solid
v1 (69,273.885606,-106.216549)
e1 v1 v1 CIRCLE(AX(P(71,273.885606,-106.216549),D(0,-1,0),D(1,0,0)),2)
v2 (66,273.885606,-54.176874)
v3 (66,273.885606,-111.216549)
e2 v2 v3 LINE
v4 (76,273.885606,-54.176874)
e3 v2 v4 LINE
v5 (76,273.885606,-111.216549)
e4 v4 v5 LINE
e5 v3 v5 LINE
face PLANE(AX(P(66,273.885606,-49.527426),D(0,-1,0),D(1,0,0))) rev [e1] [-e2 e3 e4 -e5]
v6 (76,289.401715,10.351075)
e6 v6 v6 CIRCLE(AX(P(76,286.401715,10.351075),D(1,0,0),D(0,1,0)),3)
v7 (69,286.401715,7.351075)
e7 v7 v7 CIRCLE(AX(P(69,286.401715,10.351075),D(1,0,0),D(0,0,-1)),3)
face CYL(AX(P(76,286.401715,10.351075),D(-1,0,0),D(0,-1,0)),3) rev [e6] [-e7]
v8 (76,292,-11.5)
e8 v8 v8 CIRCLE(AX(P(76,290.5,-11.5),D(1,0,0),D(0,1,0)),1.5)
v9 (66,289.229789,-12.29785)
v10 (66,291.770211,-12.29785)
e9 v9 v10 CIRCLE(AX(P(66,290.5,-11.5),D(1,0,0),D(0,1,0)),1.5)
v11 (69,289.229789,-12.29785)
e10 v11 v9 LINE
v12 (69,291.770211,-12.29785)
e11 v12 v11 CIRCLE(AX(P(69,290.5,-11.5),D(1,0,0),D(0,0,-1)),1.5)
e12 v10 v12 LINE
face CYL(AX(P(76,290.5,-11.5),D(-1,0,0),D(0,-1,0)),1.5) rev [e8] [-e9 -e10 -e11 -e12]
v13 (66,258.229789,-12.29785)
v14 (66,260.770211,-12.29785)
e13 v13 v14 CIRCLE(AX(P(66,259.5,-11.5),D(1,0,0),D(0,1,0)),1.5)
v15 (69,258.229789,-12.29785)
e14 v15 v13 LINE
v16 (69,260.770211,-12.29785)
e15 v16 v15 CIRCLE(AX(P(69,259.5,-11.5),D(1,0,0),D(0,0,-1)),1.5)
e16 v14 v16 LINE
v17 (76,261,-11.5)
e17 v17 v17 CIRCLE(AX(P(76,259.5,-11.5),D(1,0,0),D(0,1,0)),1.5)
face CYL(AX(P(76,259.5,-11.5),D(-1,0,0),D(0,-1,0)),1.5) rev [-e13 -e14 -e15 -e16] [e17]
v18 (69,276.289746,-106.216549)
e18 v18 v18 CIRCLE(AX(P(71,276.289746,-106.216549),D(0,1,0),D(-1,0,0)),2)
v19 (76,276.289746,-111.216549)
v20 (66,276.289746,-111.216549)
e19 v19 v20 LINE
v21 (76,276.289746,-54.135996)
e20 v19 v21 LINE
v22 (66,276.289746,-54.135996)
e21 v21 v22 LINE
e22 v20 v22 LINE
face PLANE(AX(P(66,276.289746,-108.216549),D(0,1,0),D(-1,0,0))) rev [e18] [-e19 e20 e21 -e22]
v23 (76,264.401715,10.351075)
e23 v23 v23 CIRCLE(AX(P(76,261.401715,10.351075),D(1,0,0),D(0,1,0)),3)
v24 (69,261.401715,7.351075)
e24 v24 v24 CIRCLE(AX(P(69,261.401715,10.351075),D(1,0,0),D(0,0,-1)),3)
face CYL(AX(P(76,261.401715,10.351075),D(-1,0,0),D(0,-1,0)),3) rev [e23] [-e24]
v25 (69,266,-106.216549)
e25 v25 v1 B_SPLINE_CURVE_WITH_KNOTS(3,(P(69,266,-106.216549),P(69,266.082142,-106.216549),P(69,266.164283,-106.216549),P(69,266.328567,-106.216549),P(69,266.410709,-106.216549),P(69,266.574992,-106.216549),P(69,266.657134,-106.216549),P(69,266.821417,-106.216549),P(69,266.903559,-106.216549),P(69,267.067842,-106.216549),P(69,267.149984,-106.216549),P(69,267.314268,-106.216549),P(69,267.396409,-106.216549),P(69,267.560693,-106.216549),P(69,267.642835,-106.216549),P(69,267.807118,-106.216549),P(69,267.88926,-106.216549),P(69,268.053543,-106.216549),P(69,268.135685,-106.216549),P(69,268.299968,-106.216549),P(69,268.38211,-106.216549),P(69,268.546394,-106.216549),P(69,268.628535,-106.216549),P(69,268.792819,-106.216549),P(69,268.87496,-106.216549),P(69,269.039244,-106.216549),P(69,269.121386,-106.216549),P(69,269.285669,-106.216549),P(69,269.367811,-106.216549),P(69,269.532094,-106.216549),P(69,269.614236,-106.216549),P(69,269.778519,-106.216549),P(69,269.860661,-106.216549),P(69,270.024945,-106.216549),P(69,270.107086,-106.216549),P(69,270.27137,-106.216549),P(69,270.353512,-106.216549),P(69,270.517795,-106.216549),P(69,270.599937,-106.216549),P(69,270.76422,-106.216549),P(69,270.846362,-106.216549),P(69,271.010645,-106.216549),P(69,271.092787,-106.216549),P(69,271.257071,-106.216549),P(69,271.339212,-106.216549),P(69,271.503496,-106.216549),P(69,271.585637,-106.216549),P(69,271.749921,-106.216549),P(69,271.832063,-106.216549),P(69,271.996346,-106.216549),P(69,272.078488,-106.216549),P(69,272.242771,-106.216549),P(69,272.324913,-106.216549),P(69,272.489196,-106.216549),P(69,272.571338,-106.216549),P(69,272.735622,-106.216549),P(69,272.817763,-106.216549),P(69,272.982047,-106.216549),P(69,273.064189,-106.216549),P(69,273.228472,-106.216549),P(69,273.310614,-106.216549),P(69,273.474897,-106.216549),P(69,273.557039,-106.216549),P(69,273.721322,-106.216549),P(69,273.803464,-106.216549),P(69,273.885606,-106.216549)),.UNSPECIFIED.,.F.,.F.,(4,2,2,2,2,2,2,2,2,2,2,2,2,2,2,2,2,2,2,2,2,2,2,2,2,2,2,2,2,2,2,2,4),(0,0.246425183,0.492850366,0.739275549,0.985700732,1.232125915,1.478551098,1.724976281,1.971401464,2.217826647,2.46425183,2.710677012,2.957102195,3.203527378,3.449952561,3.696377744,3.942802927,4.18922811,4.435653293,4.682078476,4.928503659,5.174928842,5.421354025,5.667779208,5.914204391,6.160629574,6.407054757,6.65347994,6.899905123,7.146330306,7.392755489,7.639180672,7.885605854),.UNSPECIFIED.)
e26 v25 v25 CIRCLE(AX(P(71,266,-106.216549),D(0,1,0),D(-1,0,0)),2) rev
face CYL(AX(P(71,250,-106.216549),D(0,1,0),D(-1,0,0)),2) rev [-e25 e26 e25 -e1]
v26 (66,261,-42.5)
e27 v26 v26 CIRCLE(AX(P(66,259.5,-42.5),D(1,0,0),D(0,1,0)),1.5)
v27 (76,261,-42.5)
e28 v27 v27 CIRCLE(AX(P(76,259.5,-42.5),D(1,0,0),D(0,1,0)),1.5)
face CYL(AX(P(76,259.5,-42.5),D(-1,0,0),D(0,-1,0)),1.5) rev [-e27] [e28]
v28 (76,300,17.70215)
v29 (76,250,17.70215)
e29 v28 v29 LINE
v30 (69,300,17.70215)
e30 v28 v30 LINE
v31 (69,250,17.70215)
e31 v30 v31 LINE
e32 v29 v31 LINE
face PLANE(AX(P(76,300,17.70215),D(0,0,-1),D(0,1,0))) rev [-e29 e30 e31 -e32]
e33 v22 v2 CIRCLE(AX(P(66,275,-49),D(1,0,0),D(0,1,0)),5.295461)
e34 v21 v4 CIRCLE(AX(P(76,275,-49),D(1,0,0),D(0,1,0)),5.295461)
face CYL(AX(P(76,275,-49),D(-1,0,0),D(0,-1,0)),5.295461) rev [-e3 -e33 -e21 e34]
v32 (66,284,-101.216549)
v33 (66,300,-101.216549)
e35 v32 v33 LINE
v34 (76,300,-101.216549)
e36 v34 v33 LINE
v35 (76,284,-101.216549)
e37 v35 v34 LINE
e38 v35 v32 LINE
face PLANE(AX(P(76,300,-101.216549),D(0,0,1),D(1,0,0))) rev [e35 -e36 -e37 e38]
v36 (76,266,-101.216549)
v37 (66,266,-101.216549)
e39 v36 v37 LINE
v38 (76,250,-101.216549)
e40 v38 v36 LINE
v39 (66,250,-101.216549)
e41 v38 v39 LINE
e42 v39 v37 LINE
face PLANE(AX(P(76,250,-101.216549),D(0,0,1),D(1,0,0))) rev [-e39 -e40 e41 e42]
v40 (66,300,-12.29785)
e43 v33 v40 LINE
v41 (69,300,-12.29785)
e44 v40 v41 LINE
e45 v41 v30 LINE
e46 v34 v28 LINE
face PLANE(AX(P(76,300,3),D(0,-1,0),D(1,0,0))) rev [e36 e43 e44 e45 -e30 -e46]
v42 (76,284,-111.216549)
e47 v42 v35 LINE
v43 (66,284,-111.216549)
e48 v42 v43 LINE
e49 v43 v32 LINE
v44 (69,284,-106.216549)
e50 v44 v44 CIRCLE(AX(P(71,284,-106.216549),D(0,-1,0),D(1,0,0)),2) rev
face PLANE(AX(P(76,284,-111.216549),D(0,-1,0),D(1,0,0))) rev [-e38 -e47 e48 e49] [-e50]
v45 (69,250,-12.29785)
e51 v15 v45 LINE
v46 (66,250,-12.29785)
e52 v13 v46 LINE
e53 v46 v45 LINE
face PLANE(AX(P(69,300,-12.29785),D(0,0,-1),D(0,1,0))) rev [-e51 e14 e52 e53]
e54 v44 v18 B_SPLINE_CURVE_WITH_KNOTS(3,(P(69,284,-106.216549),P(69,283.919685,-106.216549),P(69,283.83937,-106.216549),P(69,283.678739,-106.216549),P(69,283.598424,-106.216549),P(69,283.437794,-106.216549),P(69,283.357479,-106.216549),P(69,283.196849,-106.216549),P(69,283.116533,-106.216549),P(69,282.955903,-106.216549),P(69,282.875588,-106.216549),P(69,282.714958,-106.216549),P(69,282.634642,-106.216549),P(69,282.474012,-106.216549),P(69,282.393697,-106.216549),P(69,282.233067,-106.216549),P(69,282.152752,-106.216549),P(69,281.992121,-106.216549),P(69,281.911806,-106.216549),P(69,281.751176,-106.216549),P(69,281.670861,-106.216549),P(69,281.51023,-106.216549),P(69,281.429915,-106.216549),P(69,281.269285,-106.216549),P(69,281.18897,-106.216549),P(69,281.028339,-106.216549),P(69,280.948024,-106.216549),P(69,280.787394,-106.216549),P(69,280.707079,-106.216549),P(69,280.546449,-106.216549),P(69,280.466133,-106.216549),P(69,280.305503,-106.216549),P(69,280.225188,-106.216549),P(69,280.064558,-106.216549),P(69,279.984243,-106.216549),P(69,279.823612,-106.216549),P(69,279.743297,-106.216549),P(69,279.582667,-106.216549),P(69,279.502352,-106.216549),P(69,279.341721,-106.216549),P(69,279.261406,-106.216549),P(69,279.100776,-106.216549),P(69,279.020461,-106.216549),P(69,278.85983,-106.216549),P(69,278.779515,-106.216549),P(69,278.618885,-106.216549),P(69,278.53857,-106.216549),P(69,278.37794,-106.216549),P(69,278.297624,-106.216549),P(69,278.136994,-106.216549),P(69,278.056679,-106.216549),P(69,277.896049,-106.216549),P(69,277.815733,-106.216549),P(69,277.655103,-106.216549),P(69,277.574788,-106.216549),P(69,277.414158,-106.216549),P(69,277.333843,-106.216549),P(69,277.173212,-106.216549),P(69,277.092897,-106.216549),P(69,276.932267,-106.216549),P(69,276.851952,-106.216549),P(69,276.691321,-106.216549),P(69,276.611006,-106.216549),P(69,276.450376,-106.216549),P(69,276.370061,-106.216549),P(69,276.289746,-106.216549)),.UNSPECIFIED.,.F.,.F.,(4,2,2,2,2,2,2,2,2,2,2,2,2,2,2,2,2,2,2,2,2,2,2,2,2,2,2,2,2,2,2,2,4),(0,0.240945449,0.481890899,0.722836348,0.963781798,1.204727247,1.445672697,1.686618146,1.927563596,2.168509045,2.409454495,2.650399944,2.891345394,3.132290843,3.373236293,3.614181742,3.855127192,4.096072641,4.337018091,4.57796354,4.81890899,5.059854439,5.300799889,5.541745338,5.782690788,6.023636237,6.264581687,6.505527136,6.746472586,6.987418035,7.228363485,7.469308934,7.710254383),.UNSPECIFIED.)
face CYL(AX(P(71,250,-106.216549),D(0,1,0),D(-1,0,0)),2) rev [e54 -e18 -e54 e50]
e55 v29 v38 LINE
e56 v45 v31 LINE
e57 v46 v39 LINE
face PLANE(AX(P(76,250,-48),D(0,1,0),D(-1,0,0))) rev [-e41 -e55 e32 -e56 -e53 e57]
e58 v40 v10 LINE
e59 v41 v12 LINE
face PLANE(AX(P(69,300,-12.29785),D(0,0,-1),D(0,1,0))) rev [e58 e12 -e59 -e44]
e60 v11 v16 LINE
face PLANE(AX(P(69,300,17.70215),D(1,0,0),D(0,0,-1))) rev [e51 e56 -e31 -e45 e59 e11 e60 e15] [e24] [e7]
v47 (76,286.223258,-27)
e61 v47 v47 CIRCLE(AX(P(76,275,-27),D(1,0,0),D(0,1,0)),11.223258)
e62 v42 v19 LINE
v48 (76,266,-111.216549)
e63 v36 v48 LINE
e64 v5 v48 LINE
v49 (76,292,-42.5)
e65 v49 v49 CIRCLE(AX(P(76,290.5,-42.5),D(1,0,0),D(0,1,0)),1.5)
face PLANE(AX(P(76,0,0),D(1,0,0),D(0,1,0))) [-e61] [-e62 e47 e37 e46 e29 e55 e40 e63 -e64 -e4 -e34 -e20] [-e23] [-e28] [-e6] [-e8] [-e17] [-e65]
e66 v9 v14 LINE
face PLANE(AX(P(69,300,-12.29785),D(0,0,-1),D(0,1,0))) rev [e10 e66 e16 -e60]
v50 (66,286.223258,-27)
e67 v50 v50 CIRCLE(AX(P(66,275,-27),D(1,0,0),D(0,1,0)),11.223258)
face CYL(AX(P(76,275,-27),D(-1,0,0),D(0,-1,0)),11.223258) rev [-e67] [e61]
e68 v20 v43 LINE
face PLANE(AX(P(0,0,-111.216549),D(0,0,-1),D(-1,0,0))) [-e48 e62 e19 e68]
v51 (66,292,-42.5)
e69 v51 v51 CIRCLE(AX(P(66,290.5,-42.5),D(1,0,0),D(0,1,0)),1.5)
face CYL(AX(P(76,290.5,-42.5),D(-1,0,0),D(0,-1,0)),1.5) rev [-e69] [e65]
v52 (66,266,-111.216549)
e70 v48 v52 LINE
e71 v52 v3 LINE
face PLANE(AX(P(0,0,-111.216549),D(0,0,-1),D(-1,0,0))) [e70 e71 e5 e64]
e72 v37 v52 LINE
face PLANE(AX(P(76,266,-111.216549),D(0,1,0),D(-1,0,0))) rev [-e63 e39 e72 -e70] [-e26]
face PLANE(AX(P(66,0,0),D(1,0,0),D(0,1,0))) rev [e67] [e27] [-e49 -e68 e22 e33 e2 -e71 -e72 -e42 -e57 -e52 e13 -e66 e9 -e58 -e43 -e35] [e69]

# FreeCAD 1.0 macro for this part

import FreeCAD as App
import Part
import Sketcher
from FreeCAD import Vector

doc = App.newDocument("Part")
params = doc.addObject("Spreadsheet::Sheet", "Params")
for row, (alias, value) in enumerate([
    ("sketch1_diameter", "3 mm"),
    ("sketch1_diameter2", "6 mm"),
    ("sketch1_width", "50 mm"),
    ("pad1_length", "10 mm"),
    ("sketch2_width", "3 mm"),
    ("sketch2_height", "30 mm"),
    ("pocket1_length", "50 mm"),
    ("sketch3_height", "60 mm"),
    ("pocket2_length", "10 mm"),
    ("sketch4_width", "10 mm"),
    ("pad2_length", "3 mm"),
    ("sketch5_diameter", "7 mm"),
    ("pocket3_length", "5 mm"),
    ("sketch6_diameter", "4 mm"),
    ("pocket4_length", "45 mm"),
    ("sketch7_width", "16 mm"),
    ("sketch7_height", "10 mm"),
    ("pocket5_length", "10 mm"),
], start=1):
    params.set(f"A{row}", alias)
    params.set(f"B{row}", "=" + value)
    params.setAlias(f"B{row}", alias)

body = doc.addObject("PartDesign::Body", "Body")

# Sketch on YZ plane
sketch1 = body.newObject("Sketcher::SketchObject", "Sketch")
sketch1.AttachmentSupport = (doc.getObject("YZ_Plane"), [""])
sketch1.MapMode = "FlatFace"
sketch1.AttachmentOffset = App.Placement(Vector(0, 0, 66), App.Rotation())
sketch1.addGeometry([
    Part.LineSegment(Vector(250, 17.7, 0), Vector(250, -108.2, 0)),  # 0
    Part.LineSegment(Vector(250, -108.2, 0), Vector(300, -108.2, 0)),  # 1
    Part.LineSegment(Vector(300, -108.2, 0), Vector(300, 17.7, 0)),  # 2
    Part.LineSegment(Vector(300, 17.7, 0), Vector(250, 17.7, 0)),  # 3
    Part.Circle(Vector(259.5, -42.5, 0), Vector(0, 0, 1), 1.5),  # 4
    Part.Circle(Vector(259.5, -11.5, 0), Vector(0, 0, 1), 1.5),  # 5
    Part.Circle(Vector(261.4, 10.4, 0), Vector(0, 0, 1), 3),  # 6
    Part.Circle(Vector(275, -49, 0), Vector(0, 0, 1), 5.3),  # 7
    Part.Circle(Vector(275, -27, 0), Vector(0, 0, 1), 11.2),  # 8
    Part.Circle(Vector(290.5, -42.5, 0), Vector(0, 0, 1), 1.5),  # 9
    Part.Circle(Vector(290.5, -11.5, 0), Vector(0, 0, 1), 1.5),  # 10
    Part.Circle(Vector(286.4, 10.4, 0), Vector(0, 0, 1), 3),  # 11
], False)
sketch1.addConstraint([
    Sketcher.Constraint("Coincident", 0, 2, 1, 1),
    Sketcher.Constraint("Coincident", 1, 2, 2, 1),
    Sketcher.Constraint("Coincident", 2, 2, 3, 1),
    Sketcher.Constraint("Coincident", 3, 2, 0, 1),
    Sketcher.Constraint("Vertical", 0),
    Sketcher.Constraint("Horizontal", 1),
    Sketcher.Constraint("Vertical", 2),
    Sketcher.Constraint("Horizontal", 3),
    Sketcher.Constraint("Equal", 4, 5),
    Sketcher.Constraint("Equal", 5, 9),
    Sketcher.Constraint("Equal", 9, 10),
    Sketcher.Constraint("Equal", 6, 11),
    Sketcher.Constraint("Horizontal", 4, 3, 9, 3),
    Sketcher.Constraint("Horizontal", 5, 3, 10, 3),
    Sketcher.Constraint("Horizontal", 6, 3, 11, 3),
    Sketcher.Constraint("Vertical", 4, 3, 5, 3),
    Sketcher.Constraint("Vertical", 7, 3, 8, 3),
    Sketcher.Constraint("Vertical", 9, 3, 10, 3),
    Sketcher.Constraint("Diameter", 4, 3.0),
    Sketcher.Constraint("Diameter", 6, 6.0),
    Sketcher.Constraint("DistanceX", 1, 1, 1, 2, 50.0),
    Sketcher.Constraint("DistanceX", -1, 1, 7, 3, 275.0),
    Sketcher.Constraint("DistanceY", 7, 3, -1, 1, 49.0),
    Sketcher.Constraint("DistanceY", 8, 3, -1, 1, 27.0),
    Sketcher.Constraint("DistanceX", -1, 1, 0, 2, 250.0),
    Sketcher.Constraint("DistanceY", 4, 3, 5, 3, 31.0),
    Sketcher.Constraint("DistanceX", 4, 3, 9, 3, 31.0),
    Sketcher.Constraint("DistanceX", 6, 3, 11, 3, 25.0),
    Sketcher.Constraint("DistanceX", -1, 1, 4, 3, 259.5),
    Sketcher.Constraint("DistanceY", 4, 3, -1, 1, 42.5),
    Sketcher.Constraint("Diameter", 7, 10.590921),
    Sketcher.Constraint("Diameter", 8, 22.446515),
    Sketcher.Constraint("DistanceY", 0, 2, 0, 1, 125.918699),
    Sketcher.Constraint("DistanceY", 0, 2, -1, 1, 108.216549),
    Sketcher.Constraint("DistanceX", -1, 1, 6, 3, 261.401715),
    Sketcher.Constraint("DistanceY", -1, 1, 6, 3, 10.351075),
])
sketch1.setExpression("Constraints[18]", "Params.sketch1_diameter")
sketch1.setExpression("Constraints[19]", "Params.sketch1_diameter2")
sketch1.setExpression("Constraints[20]", "Params.sketch1_width")
pad1 = body.newObject("PartDesign::Pad", "Pad")
pad1.Profile = sketch1
pad1.setExpression("Length", "Params.pad1_length")

# Sketch on XZ plane
sketch2 = body.newObject("Sketcher::SketchObject", "Sketch001")
sketch2.AttachmentSupport = (doc.getObject("XZ_Plane"), [""])
sketch2.MapMode = "FlatFace"
sketch2.AttachmentOffset = App.Placement(Vector(0, 0, -250), App.Rotation())
sketch2.addGeometry([
    Part.LineSegment(Vector(66, 17.7, 0), Vector(66, -12.3, 0)),
    Part.LineSegment(Vector(66, -12.3, 0), Vector(69, -12.3, 0)),
    Part.LineSegment(Vector(69, -12.3, 0), Vector(69, 17.7, 0)),
    Part.LineSegment(Vector(69, 17.7, 0), Vector(66, 17.7, 0)),
], False)
sketch2.addConstraint([
    Sketcher.Constraint("Coincident", 0, 2, 1, 1),
    Sketcher.Constraint("Coincident", 1, 2, 2, 1),
    Sketcher.Constraint("Coincident", 2, 2, 3, 1),
    Sketcher.Constraint("Coincident", 3, 2, 0, 1),
    Sketcher.Constraint("Vertical", 0),
    Sketcher.Constraint("Horizontal", 1),
    Sketcher.Constraint("Vertical", 2),
    Sketcher.Constraint("Horizontal", 3),
    Sketcher.Constraint("DistanceX", 1, 1, 1, 2, 3.0),
    Sketcher.Constraint("DistanceY", 0, 2, 0, 1, 30.0),
    Sketcher.Constraint("DistanceX", -1, 1, 0, 2, 66.0),
    Sketcher.Constraint("DistanceY", 0, 2, -1, 1, 12.29785),
])
sketch2.setExpression("Constraints[8]", "Params.sketch2_width")
sketch2.setExpression("Constraints[9]", "Params.sketch2_height")
pocket1 = body.newObject("PartDesign::Pocket", "Pocket")
pocket1.Profile = sketch2
pocket1.setExpression("Length", "Params.pocket1_length")

# Sketch on YZ plane
sketch3 = body.newObject("Sketcher::SketchObject", "Sketch002")
sketch3.AttachmentSupport = (doc.getObject("YZ_Plane"), [""])
sketch3.MapMode = "FlatFace"
sketch3.AttachmentOffset = App.Placement(Vector(0, 0, 76), App.Rotation())
sketch3.addGeometry([
    Part.LineSegment(Vector(276.3, -49.5, 0), Vector(273.9, -49.5, 0)),
    Part.LineSegment(Vector(273.9, -49.5, 0), Vector(273.9, -109.5, 0)),
    Part.LineSegment(Vector(273.9, -109.5, 0), Vector(276.3, -109.5, 0)),
    Part.LineSegment(Vector(276.3, -109.5, 0), Vector(276.3, -49.5, 0)),
], False)
sketch3.addConstraint([
    Sketcher.Constraint("Coincident", 0, 2, 1, 1),
    Sketcher.Constraint("Coincident", 1, 2, 2, 1),
    Sketcher.Constraint("Coincident", 2, 2, 3, 1),
    Sketcher.Constraint("Coincident", 3, 2, 0, 1),
    Sketcher.Constraint("Horizontal", 0),
    Sketcher.Constraint("Vertical", 1),
    Sketcher.Constraint("Horizontal", 2),
    Sketcher.Constraint("Vertical", 3),
    Sketcher.Constraint("DistanceY", 1, 2, 1, 1, 60.0),
    Sketcher.Constraint("DistanceX", 0, 2, 0, 1, 2.40414),
    Sketcher.Constraint("DistanceX", -1, 1, 0, 2, 273.885606),
    Sketcher.Constraint("DistanceY", 0, 2, -1, 1, 49.527426),
])
sketch3.setExpression("Constraints[8]", "Params.sketch3_height")
pocket2 = body.newObject("PartDesign::Pocket", "Pocket001")
pocket2.Profile = sketch3
pocket2.setExpression("Length", "Params.pocket2_length")

# Sketch on XY plane
sketch4 = body.newObject("Sketcher::SketchObject", "Sketch003")
sketch4.AttachmentSupport = (doc.getObject("XY_Plane"), [""])
sketch4.MapMode = "FlatFace"
sketch4.AttachmentOffset = App.Placement(Vector(0, 0, -108.216549), App.Rotation())
sketch4.addGeometry([
    Part.LineSegment(Vector(76, 274, 0), Vector(76, 250, 0)),  # 0
    Part.LineSegment(Vector(76, 250, 0), Vector(66, 250, 0)),  # 1
    Part.LineSegment(Vector(66, 250, 0), Vector(66, 274, 0)),  # 2
    Part.LineSegment(Vector(66, 274, 0), Vector(76, 274, 0)),  # 3
    Part.LineSegment(Vector(76, 300, 0), Vector(76, 276, 0)),  # 4
    Part.LineSegment(Vector(76, 276, 0), Vector(66, 276, 0)),  # 5
    Part.LineSegment(Vector(66, 276, 0), Vector(66, 300, 0)),  # 6
    Part.LineSegment(Vector(66, 300, 0), Vector(76, 300, 0)),  # 7
], False)
sketch4.addConstraint([
    Sketcher.Constraint("Coincident", 0, 2, 1, 1),
    Sketcher.Constraint("Coincident", 1, 2, 2, 1),
    Sketcher.Constraint("Coincident", 2, 2, 3, 1),
    Sketcher.Constraint("Coincident", 3, 2, 0, 1),
    Sketcher.Constraint("Coincident", 4, 2, 5, 1),
    Sketcher.Constraint("Coincident", 5, 2, 6, 1),
    Sketcher.Constraint("Coincident", 6, 2, 7, 1),
    Sketcher.Constraint("Coincident", 7, 2, 4, 1),
    Sketcher.Constraint("Vertical", 0),
    Sketcher.Constraint("Horizontal", 1),
    Sketcher.Constraint("Vertical", 2),
    Sketcher.Constraint("Horizontal", 3),
    Sketcher.Constraint("Vertical", 4),
    Sketcher.Constraint("Horizontal", 5),
    Sketcher.Constraint("Vertical", 6),
    Sketcher.Constraint("Horizontal", 7),
    Sketcher.Constraint("Vertical", 3, 2, 4, 2),
    Sketcher.Constraint("Vertical", 2, 2, 5, 2),
    Sketcher.Constraint("DistanceX", 1, 2, 1, 1, 10.0),
    Sketcher.Constraint("DistanceX", -1, 1, 0, 2, 76.0),
    Sketcher.Constraint("DistanceY", -1, 1, 0, 2, 250.0),
    Sketcher.Constraint("DistanceY", -1, 1, 6, 2, 300.0),
    Sketcher.Constraint("DistanceY", 0, 2, 0, 1, 23.885606),
    Sketcher.Constraint("DistanceY", 4, 2, 4, 1, 23.710254),
])
sketch4.setExpression("Constraints[18]", "Params.sketch4_width")
pad2 = body.newObject("PartDesign::Pad", "Pad001")
pad2.Profile = sketch4
pad2.setExpression("Length", "Params.pad2_length")
pad2.Reversed = True

# Sketch on XZ plane
sketch5 = body.newObject("Sketcher::SketchObject", "Sketch004")
sketch5.AttachmentSupport = (doc.getObject("XZ_Plane"), [""])
sketch5.MapMode = "FlatFace"
sketch5.AttachmentOffset = App.Placement(Vector(0, 0, -300), App.Rotation())
sketch5.addGeometry(Part.Circle(Vector(71, -106.2, 0), Vector(0, 0, 1), 3.5), False)
sketch5.addConstraint([
    Sketcher.Constraint("Diameter", 0, 7.0),
    Sketcher.Constraint("DistanceX", -1, 1, 0, 3, 71.0),
    Sketcher.Constraint("DistanceY", 0, 3, -1, 1, 106.216549),
])
sketch5.setExpression("Constraints[0]", "Params.sketch5_diameter")
pocket3 = body.newObject("PartDesign::Pocket", "Pocket002")
pocket3.Profile = sketch5
pocket3.setExpression("Length", "Params.pocket3_length")
pocket3.Reversed = True

# Sketch on XZ plane
sketch6 = body.newObject("Sketcher::SketchObject", "Sketch005")
sketch6.AttachmentSupport = (doc.getObject("XZ_Plane"), [""])
sketch6.MapMode = "FlatFace"
sketch6.AttachmentOffset = App.Placement(Vector(0, 0, -295), App.Rotation())
sketch6.addGeometry(Part.Circle(Vector(71, -106.2, 0), Vector(0, 0, 1), 2), False)
sketch6.addConstraint([
    Sketcher.Constraint("Diameter", 0, 4.0),
    Sketcher.Constraint("DistanceX", -1, 1, 0, 3, 71.0),
    Sketcher.Constraint("DistanceY", 0, 3, -1, 1, 106.216549),
])
sketch6.setExpression("Constraints[0]", "Params.sketch6_diameter")
pocket4 = body.newObject("PartDesign::Pocket", "Pocket003")
pocket4.Profile = sketch6
pocket4.setExpression("Length", "Params.pocket4_length")
pocket4.Reversed = True

# Sketch on YZ plane
sketch7 = body.newObject("Sketcher::SketchObject", "Sketch006")
sketch7.AttachmentSupport = (doc.getObject("YZ_Plane"), [""])
sketch7.MapMode = "FlatFace"
sketch7.AttachmentOffset = App.Placement(Vector(0, 0, 66), App.Rotation())
sketch7.addGeometry([
    Part.LineSegment(Vector(300, -111, 0), Vector(284, -111, 0)),  # 0
    Part.LineSegment(Vector(284, -111, 0), Vector(284, -101, 0)),  # 1
    Part.LineSegment(Vector(284, -101, 0), Vector(300, -101, 0)),  # 2
    Part.LineSegment(Vector(300, -101, 0), Vector(300, -111, 0)),  # 3
    Part.LineSegment(Vector(266, -111, 0), Vector(250, -111, 0)),  # 4
    Part.LineSegment(Vector(250, -111, 0), Vector(250, -101, 0)),  # 5
    Part.LineSegment(Vector(250, -101, 0), Vector(266, -101, 0)),  # 6
    Part.LineSegment(Vector(266, -101, 0), Vector(266, -111, 0)),  # 7
], False)
sketch7.addConstraint([
    Sketcher.Constraint("Coincident", 0, 2, 1, 1),
    Sketcher.Constraint("Coincident", 1, 2, 2, 1),
    Sketcher.Constraint("Coincident", 2, 2, 3, 1),
    Sketcher.Constraint("Coincident", 3, 2, 0, 1),
    Sketcher.Constraint("Coincident", 4, 2, 5, 1),
    Sketcher.Constraint("Coincident", 5, 2, 6, 1),
    Sketcher.Constraint("Coincident", 6, 2, 7, 1),
    Sketcher.Constraint("Coincident", 7, 2, 4, 1),
    Sketcher.Constraint("Horizontal", 0),
    Sketcher.Constraint("Vertical", 1),
    Sketcher.Constraint("Horizontal", 2),
    Sketcher.Constraint("Vertical", 3),
    Sketcher.Constraint("Horizontal", 4),
    Sketcher.Constraint("Vertical", 5),
    Sketcher.Constraint("Horizontal", 6),
    Sketcher.Constraint("Vertical", 7),
    Sketcher.Constraint("Horizontal", 3, 2, 4, 2),
    Sketcher.Constraint("Horizontal", 2, 2, 5, 2),
    Sketcher.Constraint("Equal", 2, 4),
    Sketcher.Constraint("DistanceX", 0, 2, 0, 1, 16.0),
    Sketcher.Constraint("DistanceY", 1, 1, 1, 2, 10.0),
    Sketcher.Constraint("DistanceX", -1, 1, 0, 2, 284.0),
    Sketcher.Constraint("DistanceX", -1, 1, 4, 2, 250.0),
    Sketcher.Constraint("DistanceY", 0, 2, -1, 1, 111.216549),
])
sketch7.setExpression("Constraints[19]", "Params.sketch7_width")
sketch7.setExpression("Constraints[20]", "Params.sketch7_height")
pocket5 = body.newObject("PartDesign::Pocket", "Pocket004")
pocket5.Profile = sketch7
pocket5.setExpression("Length", "Params.pocket5_length")
pocket5.Reversed = True

doc.recompute()
